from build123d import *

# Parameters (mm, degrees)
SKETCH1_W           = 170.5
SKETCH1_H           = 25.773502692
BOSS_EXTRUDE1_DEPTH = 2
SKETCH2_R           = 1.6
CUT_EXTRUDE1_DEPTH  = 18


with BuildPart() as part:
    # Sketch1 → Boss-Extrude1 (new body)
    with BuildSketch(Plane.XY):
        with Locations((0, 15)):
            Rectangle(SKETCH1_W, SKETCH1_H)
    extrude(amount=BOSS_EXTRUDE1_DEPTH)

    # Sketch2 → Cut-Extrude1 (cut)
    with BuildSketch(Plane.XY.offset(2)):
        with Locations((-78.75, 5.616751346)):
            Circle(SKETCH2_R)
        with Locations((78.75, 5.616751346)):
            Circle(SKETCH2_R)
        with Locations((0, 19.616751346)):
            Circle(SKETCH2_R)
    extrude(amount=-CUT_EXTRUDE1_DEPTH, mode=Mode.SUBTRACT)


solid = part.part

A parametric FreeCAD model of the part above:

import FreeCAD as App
import Part
import Sketcher
Q = App.Units.Quantity

doc = App.newDocument("Part")
body = doc.addObject("PartDesign::Body", "Body")

sketch1 = body.newObject("Sketcher::SketchObject", "Sketch")
sketch1.AttachmentSupport = (doc.getObject("XY_Plane"), [""])
sketch1.MapMode = "FlatFace"
sketch1.addGeometry(Part.LineSegment(App.Vector(-85, 28, 0), App.Vector(-85, 2, 0)), False)
sketch1.addGeometry(Part.LineSegment(App.Vector(-85, 2, 0), App.Vector(85, 2, 0)), False)
sketch1.addGeometry(Part.LineSegment(App.Vector(85, 2, 0), App.Vector(85, 28, 0)), False)
sketch1.addGeometry(Part.LineSegment(App.Vector(85, 28, 0), App.Vector(-85, 28, 0)), False)
sketch1.addConstraint(Sketcher.Constraint("Coincident", 0, 2, 1, 1))
sketch1.addConstraint(Sketcher.Constraint("Coincident", 1, 2, 2, 1))
sketch1.addConstraint(Sketcher.Constraint("Coincident", 2, 2, 3, 1))
sketch1.addConstraint(Sketcher.Constraint("Coincident", 3, 2, 0, 1))
sketch1.addConstraint(Sketcher.Constraint("Vertical", 0))
sketch1.addConstraint(Sketcher.Constraint("Horizontal", 1))
sketch1.addConstraint(Sketcher.Constraint("Vertical", 2))
sketch1.addConstraint(Sketcher.Constraint("Horizontal", 3))
sketch1.addConstraint(Sketcher.Constraint("DistanceX", 1, 1, 1, 2, Q("170.5 mm")))
sketch1.addConstraint(Sketcher.Constraint("DistanceX", 0, 2, -1, 1, Q("85.25 mm")))
sketch1.addConstraint(Sketcher.Constraint("DistanceY", 0, 2, 0, 1, Q("25.773503 mm")))
sketch1.addConstraint(Sketcher.Constraint("DistanceY", -1, 1, 0, 2, Q("2.113249 mm")))
pad1 = body.newObject("PartDesign::Pad", "Pad")
pad1.Profile = sketch1
pad1.Length = 2

sketch2 = body.newObject("Sketcher::SketchObject", "Sketch001")
sketch2.AttachmentSupport = (doc.getObject("XY_Plane"), [""])
sketch2.MapMode = "FlatFace"
sketch2.AttachmentOffset = App.Placement(App.Vector(0, 0, 2), App.Rotation())
sketch2.addGeometry(Part.Circle(App.Vector(-78.8, 5.6, 0), App.Vector(0, 0, 1), 1.6), False)
sketch2.addGeometry(Part.Circle(App.Vector(78.8, 5.6, 0), App.Vector(0, 0, 1), 1.6), False)
sketch2.addGeometry(Part.Circle(App.Vector(0, 19.6, 0), App.Vector(0, 0, 1), 1.6), False)
sketch2.addConstraint(Sketcher.Constraint("Equal", 0, 1))
sketch2.addConstraint(Sketcher.Constraint("Equal", 1, 2))
sketch2.addConstraint(Sketcher.Constraint("Symmetric", 0, 3, 1, 3, -2))
sketch2.addConstraint(Sketcher.Constraint("PointOnObject", 2, 3, -2))
sketch2.addConstraint(Sketcher.Constraint("Diameter", 0, Q("3.2 mm")))
sketch2.addConstraint(Sketcher.Constraint("DistanceY", 0, 3, 2, 3, Q("14 mm")))
sketch2.addConstraint(Sketcher.Constraint("DistanceX", 0, 3, 1, 3, Q("157.5 mm")))
sketch2.addConstraint(Sketcher.Constraint("DistanceY", -1, 1, 0, 3, Q("5.616751 mm")))
pocket1 = body.newObject("PartDesign::Pocket", "Pocket")
pocket1.Profile = sketch2
pocket1.Length = 18

doc.recompute()
